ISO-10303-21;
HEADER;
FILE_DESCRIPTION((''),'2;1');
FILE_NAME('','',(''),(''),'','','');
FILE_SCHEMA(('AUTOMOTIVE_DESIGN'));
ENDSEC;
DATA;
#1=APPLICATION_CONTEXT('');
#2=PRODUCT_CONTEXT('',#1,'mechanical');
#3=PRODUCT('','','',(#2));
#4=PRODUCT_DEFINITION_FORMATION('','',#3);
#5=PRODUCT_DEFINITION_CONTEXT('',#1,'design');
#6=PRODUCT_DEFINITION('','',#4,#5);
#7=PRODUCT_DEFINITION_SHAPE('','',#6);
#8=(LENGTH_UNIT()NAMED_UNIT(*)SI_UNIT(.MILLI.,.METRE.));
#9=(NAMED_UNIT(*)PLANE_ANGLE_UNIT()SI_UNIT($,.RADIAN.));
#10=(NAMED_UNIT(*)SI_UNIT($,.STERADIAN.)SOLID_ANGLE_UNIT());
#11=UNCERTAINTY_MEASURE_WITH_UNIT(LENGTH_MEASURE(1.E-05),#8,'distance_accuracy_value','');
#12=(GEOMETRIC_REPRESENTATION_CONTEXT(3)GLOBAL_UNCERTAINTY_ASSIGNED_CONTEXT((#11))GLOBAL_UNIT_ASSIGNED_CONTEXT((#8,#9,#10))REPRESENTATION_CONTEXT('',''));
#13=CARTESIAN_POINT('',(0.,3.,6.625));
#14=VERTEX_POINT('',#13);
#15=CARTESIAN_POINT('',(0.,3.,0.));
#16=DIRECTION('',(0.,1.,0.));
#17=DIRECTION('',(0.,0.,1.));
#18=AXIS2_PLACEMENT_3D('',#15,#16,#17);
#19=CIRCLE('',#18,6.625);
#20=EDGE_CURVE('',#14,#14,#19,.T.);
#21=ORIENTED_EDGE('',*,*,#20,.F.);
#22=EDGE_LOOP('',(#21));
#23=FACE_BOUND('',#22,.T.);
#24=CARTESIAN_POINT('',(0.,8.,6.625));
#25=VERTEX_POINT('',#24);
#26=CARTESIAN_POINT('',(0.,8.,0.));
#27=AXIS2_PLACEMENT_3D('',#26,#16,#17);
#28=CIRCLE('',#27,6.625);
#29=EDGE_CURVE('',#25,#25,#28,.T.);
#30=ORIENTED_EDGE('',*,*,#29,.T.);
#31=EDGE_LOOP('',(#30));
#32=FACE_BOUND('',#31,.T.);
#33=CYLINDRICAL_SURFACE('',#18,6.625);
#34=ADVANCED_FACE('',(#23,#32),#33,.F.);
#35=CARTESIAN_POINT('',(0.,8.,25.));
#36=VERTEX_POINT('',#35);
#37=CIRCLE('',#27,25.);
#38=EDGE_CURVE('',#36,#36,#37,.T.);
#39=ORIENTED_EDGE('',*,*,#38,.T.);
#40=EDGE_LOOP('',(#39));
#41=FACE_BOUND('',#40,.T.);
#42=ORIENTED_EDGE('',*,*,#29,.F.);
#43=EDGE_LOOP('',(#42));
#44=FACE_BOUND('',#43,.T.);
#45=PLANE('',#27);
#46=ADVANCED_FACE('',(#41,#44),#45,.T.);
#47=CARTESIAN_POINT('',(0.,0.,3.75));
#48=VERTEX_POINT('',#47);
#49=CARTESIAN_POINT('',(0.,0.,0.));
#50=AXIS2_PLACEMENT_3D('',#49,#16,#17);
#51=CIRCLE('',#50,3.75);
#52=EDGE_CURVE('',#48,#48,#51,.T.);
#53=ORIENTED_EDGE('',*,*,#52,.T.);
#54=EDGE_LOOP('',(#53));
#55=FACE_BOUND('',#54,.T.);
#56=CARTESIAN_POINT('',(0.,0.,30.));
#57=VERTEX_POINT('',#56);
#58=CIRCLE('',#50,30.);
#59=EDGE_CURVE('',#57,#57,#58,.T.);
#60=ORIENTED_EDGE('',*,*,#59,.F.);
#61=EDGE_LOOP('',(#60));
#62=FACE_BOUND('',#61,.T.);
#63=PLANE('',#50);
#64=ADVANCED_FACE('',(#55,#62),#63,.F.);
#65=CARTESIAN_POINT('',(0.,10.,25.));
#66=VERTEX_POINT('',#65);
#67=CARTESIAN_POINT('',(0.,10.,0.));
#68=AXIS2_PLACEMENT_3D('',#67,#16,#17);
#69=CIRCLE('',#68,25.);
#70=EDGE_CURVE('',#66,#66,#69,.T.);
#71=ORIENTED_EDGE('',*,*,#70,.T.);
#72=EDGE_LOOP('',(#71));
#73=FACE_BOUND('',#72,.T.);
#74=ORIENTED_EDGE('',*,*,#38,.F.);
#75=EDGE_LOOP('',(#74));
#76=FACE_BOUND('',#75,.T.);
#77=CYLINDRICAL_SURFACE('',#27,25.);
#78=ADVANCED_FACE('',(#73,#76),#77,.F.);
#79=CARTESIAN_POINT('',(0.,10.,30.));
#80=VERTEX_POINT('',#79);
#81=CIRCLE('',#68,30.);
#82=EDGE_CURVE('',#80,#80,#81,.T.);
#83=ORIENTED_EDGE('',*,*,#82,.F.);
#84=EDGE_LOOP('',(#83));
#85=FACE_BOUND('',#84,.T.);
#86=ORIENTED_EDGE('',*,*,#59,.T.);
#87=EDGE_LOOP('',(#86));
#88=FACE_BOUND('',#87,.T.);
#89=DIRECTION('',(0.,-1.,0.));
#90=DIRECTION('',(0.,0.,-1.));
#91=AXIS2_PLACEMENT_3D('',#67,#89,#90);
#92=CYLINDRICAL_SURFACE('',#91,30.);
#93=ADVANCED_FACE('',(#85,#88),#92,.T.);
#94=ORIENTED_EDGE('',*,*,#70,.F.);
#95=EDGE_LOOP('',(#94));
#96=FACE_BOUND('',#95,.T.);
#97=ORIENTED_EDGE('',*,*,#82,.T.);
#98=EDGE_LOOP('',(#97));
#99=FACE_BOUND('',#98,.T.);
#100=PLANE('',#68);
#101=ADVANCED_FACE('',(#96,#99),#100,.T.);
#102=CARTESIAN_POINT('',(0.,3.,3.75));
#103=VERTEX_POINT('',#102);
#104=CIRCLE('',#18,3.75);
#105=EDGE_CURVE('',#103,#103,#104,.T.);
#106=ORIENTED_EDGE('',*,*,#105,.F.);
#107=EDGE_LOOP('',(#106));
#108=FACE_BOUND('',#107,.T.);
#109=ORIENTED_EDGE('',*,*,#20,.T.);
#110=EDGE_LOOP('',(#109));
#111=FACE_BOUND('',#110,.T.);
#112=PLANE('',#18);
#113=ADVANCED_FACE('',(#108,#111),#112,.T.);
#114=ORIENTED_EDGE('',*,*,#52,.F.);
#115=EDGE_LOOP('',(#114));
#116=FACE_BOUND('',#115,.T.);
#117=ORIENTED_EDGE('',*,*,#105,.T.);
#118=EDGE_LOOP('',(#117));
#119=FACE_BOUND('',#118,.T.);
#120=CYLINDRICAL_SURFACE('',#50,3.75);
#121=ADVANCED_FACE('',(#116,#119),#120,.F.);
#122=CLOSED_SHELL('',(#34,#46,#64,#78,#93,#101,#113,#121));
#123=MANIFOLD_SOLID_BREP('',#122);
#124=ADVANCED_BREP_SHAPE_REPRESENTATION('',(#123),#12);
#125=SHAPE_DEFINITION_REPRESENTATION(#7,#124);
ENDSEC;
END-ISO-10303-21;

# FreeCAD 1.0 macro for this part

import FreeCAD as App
import Part
import Sketcher

V = App.Vector
Q = App.Units.Quantity

doc = App.newDocument("Part")
body = doc.addObject("PartDesign::Body", "Body")

# Sketch on XZ plane
sketch1 = doc.addObject("Sketcher::SketchObject", "Sketch")
body.addObject(sketch1)
sketch1.AttachmentSupport = (doc.XZ_Plane, [""])
sketch1.MapMode = "FlatFace"
sketch1.addGeometry(Part.Circle(V(0, 0, 0), V(0, 0, 1), 30), False)
sketch1.addConstraint(Sketcher.Constraint("Coincident", 0, 3, -1, 1))
sketch1.addConstraint(Sketcher.Constraint("Diameter", 0, Q("60 mm")))
pad1 = doc.addObject("PartDesign::Pad", "Pad")
body.addObject(pad1)
pad1.Profile = sketch1
pad1.Length = 10
pad1.Reversed = True

# Sketch on XZ plane
sketch2 = doc.addObject("Sketcher::SketchObject", "Sketch001")
body.addObject(sketch2)
sketch2.AttachmentSupport = (doc.XZ_Plane, [""])
sketch2.MapMode = "FlatFace"
sketch2.AttachmentOffset = App.Placement(V(0, 0, -10), App.Rotation())
sketch2.addGeometry(Part.Circle(V(0, 0, 0), V(0, 0, 1), 25), False)
sketch2.addConstraint(Sketcher.Constraint("Coincident", 0, 3, -1, 1))
sketch2.addConstraint(Sketcher.Constraint("Diameter", 0, Q("50 mm")))
pocket1 = doc.addObject("PartDesign::Pocket", "Pocket")
body.addObject(pocket1)
pocket1.Profile = sketch2
pocket1.Length = 2
pocket1.Reversed = True

# Sketch on XZ plane
sketch3 = doc.addObject("Sketcher::SketchObject", "Sketch002")
body.addObject(sketch3)
sketch3.AttachmentSupport = (doc.XZ_Plane, [""])
sketch3.MapMode = "FlatFace"
sketch3.AttachmentOffset = App.Placement(V(0, 0, -8), App.Rotation())
sketch3.addGeometry(Part.Circle(V(0, 0, 0), V(0, 0, 1), 7), False)
sketch3.addConstraint(Sketcher.Constraint("Coincident", 0, 3, -1, 1))
sketch3.addConstraint(Sketcher.Constraint("Diameter", 0, Q("13.25 mm")))
pocket2 = doc.addObject("PartDesign::Pocket", "Pocket001")
body.addObject(pocket2)
pocket2.Profile = sketch3
pocket2.Length = 5
pocket2.Reversed = True

# Sketch on XZ plane
sketch4 = doc.addObject("Sketcher::SketchObject", "Sketch003")
body.addObject(sketch4)
sketch4.AttachmentSupport = (doc.XZ_Plane, [""])
sketch4.MapMode = "FlatFace"
sketch4.AttachmentOffset = App.Placement(V(0, 0, -3), App.Rotation())
sketch4.addGeometry(Part.Circle(V(0, 0, 0), V(0, 0, 1), 3.8), False)
sketch4.addConstraint(Sketcher.Constraint("Coincident", 0, 3, -1, 1))
sketch4.addConstraint(Sketcher.Constraint("Diameter", 0, Q("7.5 mm")))
pocket3 = doc.addObject("PartDesign::Pocket", "Pocket002")
body.addObject(pocket3)
pocket3.Profile = sketch4
pocket3.Type = "ThroughAll"
pocket3.Midplane = True

doc.recompute()
